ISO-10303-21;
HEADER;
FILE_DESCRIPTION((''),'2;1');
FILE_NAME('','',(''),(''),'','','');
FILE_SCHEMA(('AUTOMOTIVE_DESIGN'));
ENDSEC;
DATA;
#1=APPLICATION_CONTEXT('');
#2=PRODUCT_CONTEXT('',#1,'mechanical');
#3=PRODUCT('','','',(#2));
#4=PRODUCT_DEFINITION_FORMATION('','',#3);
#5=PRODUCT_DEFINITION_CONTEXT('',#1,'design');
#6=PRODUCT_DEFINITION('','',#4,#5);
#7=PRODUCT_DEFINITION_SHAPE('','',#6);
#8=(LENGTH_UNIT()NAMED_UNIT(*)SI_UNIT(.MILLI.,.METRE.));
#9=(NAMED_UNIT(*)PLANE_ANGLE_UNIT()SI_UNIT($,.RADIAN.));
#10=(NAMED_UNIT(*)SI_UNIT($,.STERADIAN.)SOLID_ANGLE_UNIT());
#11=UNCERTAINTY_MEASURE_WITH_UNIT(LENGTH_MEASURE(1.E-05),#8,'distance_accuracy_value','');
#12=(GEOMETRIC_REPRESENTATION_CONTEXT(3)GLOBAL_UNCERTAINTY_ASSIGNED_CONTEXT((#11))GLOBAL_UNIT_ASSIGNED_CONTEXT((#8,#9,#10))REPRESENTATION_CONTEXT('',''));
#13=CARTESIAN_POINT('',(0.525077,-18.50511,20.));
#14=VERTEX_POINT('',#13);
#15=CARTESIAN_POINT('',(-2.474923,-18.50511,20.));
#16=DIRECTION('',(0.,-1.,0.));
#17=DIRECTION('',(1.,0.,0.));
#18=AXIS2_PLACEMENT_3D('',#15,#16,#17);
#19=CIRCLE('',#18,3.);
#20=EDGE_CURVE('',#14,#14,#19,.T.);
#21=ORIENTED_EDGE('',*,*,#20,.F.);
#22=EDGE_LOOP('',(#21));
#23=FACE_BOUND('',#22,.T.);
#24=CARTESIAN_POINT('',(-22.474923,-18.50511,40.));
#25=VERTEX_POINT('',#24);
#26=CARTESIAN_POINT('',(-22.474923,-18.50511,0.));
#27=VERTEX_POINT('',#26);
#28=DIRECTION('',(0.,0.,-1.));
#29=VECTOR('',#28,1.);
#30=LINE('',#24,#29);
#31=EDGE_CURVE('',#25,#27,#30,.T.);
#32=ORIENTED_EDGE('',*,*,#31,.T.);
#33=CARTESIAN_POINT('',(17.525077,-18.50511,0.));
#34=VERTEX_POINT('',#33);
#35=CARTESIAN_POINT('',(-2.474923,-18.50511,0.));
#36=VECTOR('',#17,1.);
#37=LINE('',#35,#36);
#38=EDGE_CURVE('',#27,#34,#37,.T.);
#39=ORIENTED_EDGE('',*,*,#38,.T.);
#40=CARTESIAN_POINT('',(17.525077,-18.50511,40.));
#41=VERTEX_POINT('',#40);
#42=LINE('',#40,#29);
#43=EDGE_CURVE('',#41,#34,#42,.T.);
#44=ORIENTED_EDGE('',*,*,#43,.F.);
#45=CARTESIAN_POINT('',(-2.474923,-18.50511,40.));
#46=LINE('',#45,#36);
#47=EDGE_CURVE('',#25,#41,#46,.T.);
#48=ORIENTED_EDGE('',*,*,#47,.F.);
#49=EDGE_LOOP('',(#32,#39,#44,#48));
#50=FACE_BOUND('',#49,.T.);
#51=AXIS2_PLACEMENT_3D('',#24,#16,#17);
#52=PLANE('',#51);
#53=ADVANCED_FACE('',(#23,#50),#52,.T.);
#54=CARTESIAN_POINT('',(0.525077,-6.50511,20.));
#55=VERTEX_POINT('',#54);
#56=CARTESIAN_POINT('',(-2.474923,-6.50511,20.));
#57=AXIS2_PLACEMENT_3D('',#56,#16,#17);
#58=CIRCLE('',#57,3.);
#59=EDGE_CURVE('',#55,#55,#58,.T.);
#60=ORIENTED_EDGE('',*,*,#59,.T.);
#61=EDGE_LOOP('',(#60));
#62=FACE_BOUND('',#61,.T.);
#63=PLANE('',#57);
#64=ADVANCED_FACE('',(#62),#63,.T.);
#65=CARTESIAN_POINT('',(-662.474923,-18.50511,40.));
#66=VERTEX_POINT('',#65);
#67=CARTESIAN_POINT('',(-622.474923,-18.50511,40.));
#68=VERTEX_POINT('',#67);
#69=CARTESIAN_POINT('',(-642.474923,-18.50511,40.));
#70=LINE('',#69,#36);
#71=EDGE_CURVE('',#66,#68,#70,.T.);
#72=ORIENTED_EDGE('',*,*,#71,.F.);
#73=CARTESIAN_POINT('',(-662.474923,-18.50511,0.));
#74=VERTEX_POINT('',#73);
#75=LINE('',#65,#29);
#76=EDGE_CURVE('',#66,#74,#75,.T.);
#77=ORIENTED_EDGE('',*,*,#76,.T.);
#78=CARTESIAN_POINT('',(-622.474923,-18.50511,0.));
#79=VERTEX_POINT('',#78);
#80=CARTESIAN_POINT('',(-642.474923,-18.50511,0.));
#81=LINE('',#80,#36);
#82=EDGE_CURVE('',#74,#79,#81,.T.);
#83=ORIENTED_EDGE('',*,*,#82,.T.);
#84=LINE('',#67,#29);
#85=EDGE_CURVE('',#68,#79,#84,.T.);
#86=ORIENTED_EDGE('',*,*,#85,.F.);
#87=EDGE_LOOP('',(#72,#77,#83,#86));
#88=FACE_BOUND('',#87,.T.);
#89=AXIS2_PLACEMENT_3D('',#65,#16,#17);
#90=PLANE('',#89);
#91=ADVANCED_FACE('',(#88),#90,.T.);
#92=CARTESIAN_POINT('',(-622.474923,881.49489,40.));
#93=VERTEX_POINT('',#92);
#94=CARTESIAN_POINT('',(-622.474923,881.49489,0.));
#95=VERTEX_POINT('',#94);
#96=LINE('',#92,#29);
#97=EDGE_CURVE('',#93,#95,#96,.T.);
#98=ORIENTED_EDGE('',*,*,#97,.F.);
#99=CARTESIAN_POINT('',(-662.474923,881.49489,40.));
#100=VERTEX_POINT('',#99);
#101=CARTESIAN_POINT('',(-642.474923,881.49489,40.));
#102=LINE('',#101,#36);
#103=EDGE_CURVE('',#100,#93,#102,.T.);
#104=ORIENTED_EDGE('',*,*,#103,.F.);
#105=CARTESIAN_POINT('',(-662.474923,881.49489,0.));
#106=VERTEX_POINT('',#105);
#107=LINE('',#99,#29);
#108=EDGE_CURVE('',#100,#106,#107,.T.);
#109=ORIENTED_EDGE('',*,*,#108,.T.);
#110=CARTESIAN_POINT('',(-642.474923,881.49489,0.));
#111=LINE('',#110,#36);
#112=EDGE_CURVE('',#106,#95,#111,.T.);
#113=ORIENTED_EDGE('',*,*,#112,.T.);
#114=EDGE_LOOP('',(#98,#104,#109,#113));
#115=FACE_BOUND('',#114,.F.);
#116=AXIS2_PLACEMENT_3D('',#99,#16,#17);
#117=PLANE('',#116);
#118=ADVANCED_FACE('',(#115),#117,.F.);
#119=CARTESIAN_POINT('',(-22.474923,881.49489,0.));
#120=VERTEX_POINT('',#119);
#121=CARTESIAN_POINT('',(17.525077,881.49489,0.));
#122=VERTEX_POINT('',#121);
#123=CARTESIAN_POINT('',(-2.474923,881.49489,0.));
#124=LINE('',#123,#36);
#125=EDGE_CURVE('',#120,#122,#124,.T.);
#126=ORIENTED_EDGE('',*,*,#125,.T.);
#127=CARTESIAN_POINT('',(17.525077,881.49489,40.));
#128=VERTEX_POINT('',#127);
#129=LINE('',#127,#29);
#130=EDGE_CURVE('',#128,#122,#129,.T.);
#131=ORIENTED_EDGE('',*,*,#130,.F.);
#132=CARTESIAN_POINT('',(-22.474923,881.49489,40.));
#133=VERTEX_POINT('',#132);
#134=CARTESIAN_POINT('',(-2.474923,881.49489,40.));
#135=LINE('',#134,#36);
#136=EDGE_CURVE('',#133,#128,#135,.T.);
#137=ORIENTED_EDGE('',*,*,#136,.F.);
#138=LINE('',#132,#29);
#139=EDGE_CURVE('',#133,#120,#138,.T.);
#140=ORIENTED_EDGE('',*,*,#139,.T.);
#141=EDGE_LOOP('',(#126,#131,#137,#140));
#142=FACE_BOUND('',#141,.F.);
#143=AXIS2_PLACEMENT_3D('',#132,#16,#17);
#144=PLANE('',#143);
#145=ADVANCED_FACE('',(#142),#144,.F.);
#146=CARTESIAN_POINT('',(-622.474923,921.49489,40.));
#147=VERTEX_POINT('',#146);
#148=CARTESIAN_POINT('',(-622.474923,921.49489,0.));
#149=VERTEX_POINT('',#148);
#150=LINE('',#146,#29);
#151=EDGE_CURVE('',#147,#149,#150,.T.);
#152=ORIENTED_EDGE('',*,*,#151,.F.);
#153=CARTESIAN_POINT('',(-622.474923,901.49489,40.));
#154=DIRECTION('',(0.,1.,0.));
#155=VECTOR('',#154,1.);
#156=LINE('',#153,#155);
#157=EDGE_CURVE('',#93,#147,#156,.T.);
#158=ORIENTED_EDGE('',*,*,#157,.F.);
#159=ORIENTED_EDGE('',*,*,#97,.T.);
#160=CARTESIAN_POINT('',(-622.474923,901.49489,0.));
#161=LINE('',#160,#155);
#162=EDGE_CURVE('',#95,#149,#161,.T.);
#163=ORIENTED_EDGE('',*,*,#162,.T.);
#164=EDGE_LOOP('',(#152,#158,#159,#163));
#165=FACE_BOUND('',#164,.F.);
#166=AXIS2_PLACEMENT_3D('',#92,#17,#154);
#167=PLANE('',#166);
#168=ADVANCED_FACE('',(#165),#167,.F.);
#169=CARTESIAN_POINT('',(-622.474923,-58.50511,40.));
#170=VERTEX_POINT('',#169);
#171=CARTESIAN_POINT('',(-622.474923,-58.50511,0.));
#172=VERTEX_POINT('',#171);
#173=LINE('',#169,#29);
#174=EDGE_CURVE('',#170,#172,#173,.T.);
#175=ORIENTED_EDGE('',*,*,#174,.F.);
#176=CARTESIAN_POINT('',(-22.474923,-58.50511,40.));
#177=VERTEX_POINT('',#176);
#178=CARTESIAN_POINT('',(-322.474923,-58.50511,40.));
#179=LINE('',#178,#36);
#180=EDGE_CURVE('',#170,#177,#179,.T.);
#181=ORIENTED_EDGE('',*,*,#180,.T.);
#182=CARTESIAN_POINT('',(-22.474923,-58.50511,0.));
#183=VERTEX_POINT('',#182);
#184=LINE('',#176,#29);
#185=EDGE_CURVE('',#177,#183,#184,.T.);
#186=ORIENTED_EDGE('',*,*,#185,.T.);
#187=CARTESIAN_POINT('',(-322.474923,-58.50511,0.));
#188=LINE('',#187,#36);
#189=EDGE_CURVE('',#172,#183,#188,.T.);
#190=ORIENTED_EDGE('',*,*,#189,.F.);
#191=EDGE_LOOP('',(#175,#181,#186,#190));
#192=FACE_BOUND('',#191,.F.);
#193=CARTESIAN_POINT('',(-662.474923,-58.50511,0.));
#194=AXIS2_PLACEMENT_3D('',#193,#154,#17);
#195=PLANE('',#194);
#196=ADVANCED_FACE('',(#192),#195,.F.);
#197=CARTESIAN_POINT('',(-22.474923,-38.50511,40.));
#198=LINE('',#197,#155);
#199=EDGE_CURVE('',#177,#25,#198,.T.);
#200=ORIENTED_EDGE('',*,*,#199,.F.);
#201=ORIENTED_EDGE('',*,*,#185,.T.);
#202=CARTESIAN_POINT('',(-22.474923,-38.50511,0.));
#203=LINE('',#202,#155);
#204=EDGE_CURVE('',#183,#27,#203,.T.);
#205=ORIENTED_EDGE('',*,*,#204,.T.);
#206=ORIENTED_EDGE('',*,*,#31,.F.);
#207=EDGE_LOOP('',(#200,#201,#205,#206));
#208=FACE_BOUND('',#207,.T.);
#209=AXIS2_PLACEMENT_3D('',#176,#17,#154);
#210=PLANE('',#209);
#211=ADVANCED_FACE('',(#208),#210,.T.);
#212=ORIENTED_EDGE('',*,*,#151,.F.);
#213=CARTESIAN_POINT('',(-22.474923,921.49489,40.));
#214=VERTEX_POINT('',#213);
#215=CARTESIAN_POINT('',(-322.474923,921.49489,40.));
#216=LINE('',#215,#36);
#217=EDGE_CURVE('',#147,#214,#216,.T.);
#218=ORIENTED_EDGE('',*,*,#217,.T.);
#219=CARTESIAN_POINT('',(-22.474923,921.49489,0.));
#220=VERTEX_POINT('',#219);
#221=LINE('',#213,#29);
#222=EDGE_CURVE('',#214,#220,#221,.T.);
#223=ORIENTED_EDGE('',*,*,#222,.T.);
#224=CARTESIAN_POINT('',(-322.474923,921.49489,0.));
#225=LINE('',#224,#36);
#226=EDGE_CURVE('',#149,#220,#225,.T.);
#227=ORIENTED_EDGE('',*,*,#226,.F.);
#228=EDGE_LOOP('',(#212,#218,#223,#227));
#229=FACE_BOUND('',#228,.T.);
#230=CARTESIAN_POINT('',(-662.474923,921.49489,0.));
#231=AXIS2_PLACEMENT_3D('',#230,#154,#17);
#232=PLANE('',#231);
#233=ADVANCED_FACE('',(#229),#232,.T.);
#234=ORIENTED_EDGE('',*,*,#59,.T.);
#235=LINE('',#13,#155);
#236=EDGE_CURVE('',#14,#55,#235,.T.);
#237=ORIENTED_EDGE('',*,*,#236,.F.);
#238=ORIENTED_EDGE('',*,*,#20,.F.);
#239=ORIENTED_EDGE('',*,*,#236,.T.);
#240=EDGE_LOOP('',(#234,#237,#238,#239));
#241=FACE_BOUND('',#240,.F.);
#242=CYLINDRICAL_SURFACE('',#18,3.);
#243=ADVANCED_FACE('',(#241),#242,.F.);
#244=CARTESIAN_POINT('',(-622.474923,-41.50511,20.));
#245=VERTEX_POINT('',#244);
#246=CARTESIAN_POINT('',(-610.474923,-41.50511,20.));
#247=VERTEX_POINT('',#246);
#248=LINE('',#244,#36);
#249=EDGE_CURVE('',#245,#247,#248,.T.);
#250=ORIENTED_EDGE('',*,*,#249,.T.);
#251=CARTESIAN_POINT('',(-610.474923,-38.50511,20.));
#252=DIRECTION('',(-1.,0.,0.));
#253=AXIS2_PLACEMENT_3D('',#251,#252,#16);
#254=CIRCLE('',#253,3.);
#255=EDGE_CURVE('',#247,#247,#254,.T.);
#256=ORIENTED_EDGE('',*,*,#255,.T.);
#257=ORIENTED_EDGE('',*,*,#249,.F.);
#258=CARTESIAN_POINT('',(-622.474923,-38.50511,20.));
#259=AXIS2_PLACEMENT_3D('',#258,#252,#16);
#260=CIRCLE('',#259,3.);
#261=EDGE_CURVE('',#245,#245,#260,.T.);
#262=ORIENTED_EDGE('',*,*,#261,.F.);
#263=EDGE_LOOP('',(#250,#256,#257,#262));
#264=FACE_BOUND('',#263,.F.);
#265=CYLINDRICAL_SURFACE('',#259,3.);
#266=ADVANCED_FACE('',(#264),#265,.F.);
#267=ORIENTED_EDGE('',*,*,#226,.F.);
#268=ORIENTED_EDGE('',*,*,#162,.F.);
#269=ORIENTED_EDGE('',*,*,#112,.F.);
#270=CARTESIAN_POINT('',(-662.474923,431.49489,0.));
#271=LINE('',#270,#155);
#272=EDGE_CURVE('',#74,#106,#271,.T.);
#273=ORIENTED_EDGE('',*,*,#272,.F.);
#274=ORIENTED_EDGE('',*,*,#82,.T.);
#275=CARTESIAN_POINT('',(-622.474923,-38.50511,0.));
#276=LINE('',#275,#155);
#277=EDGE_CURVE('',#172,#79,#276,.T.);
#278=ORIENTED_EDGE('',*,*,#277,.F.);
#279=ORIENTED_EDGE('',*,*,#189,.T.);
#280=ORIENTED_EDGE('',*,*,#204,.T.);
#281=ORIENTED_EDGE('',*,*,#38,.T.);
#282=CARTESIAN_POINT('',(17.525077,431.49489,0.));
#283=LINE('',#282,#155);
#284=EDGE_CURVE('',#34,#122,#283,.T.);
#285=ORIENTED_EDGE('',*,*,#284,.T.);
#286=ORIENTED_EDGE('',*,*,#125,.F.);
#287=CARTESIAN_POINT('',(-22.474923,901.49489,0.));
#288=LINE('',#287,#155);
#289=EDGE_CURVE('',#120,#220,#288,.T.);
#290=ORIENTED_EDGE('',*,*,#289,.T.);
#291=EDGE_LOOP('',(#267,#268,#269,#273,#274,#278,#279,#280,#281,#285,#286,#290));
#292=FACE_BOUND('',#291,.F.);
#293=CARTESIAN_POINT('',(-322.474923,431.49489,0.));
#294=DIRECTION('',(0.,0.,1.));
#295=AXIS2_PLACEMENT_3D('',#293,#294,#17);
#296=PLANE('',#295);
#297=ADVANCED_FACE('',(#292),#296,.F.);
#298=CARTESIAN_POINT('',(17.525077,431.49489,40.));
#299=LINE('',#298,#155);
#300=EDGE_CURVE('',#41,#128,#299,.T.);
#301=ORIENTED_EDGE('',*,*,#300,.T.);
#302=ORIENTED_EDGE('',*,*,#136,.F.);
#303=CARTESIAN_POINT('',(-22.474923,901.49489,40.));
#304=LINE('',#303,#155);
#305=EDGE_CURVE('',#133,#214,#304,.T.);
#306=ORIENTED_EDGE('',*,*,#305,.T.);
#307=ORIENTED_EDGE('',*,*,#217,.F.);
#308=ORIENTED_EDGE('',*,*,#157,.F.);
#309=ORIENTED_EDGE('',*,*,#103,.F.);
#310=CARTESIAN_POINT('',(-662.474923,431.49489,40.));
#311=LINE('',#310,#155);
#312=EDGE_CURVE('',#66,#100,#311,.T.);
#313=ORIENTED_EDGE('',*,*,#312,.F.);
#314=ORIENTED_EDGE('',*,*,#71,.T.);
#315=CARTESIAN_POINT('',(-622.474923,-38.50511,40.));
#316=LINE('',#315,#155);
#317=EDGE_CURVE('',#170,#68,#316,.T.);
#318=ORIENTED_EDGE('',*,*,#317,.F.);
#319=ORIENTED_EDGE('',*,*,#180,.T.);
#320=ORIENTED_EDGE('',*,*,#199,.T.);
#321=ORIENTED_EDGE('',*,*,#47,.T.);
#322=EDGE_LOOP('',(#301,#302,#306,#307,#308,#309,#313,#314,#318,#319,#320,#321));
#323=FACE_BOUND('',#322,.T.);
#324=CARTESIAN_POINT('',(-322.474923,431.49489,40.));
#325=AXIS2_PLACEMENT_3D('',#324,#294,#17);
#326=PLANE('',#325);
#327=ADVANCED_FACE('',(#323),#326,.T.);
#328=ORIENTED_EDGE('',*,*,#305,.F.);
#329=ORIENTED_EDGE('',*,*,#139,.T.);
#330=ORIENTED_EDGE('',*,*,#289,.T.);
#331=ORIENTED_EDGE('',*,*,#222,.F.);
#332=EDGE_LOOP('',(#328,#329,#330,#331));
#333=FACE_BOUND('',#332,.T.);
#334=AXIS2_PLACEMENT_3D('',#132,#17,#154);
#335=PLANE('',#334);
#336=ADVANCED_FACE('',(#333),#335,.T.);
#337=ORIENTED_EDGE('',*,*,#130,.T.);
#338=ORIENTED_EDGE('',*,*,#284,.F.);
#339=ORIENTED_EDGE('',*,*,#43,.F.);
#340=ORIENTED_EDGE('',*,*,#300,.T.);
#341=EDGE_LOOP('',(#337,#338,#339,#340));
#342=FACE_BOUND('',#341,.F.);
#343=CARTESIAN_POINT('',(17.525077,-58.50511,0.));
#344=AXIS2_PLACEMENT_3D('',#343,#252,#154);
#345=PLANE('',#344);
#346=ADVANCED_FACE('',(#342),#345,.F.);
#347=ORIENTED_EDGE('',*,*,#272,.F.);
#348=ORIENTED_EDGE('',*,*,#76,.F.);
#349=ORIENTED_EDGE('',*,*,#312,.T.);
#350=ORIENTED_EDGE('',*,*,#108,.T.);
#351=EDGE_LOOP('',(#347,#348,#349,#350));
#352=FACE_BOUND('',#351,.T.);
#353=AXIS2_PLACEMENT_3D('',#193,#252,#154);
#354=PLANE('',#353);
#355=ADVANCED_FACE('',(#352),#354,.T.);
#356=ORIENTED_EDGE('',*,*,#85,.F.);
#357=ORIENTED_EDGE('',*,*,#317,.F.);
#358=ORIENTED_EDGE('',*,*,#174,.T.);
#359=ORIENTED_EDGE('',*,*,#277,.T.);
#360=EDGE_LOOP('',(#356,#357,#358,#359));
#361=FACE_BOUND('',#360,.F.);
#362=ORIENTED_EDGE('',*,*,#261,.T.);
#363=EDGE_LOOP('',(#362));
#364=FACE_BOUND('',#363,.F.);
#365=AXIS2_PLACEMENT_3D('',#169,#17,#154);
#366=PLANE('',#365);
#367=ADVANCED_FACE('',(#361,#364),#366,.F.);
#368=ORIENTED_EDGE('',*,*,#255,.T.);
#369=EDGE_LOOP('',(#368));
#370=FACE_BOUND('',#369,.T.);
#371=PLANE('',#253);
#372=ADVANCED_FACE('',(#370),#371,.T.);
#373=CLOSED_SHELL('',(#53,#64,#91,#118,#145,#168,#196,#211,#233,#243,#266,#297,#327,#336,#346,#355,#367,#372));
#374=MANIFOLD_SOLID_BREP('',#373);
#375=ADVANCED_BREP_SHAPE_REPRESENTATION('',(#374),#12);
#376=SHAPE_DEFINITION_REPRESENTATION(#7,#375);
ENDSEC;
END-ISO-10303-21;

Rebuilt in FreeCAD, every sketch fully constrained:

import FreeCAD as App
import Part
import Sketcher

V = App.Vector
Q = App.Units.Quantity


def add_polygon(sketch, points):
    """Adds a closed chain of lines whose ends are joined by coincident constraints."""
    first, n = sketch.GeometryCount, len(points)
    for a, b in zip(points, points[1:] + points[:1]):
        sketch.addGeometry(Part.LineSegment(App.Vector(*a, 0), App.Vector(*b, 0)), False)
    for i in range(n):
        sketch.addConstraint(Sketcher.Constraint("Coincident", first + i, 2, first + (i + 1) % n, 1))

doc = App.newDocument("Part")
body = doc.addObject("PartDesign::Body", "Body")

# Sketch on XY plane
sketch1 = body.newObject("Sketcher::SketchObject", "Sketch")
sketch1.AttachmentSupport = (doc.getObject("XY_Plane"), [""])
sketch1.MapMode = "FlatFace"
add_polygon(sketch1, [(-662.474923, 921.49489), (-662.474923, -58.50511), (17.525077, -58.50511), (17.525077, 921.49489)])  # lines 0-3
sketch1.addConstraint([
    Sketcher.Constraint("Vertical", 0),
    Sketcher.Constraint("Horizontal", 1),
    Sketcher.Constraint("Vertical", 2),
    Sketcher.Constraint("Horizontal", 3),
    Sketcher.Constraint("DistanceX", 1, 1, 1, 2, Q("680 mm")),
    Sketcher.Constraint("DistanceY", 0, 2, 0, 1, Q("980 mm")),
    Sketcher.Constraint("DistanceY", 0, 2, -1, 1, Q("58.50511 mm")),
    Sketcher.Constraint("DistanceX", 0, 2, -1, 1, Q("662.474923 mm")),
])
pad1 = body.newObject("PartDesign::Pad", "Pad")
pad1.Profile = sketch1
pad1.Length = 40

# Sketch on XY plane
sketch2 = body.newObject("Sketcher::SketchObject", "Sketch001")
sketch2.AttachmentSupport = (doc.getObject("XY_Plane"), [""])
sketch2.MapMode = "FlatFace"
sketch2.AttachmentOffset = App.Placement(V(0, 0, 40), App.Rotation())
add_polygon(sketch2, [(-662.474923, 921.49489), (-662.474923, 881.49489), (-622.474923, 881.49489), (-622.474923, 921.49489)])  # lines 0-3
add_polygon(sketch2, [(-22.474923, 921.49489), (-22.474923, 881.49489), (17.525077, 881.49489), (17.525077, 921.49489)])  # lines 4-7
add_polygon(sketch2, [(-662.474923, -18.50511), (-662.474923, -58.50511), (-622.474923, -58.50511), (-622.474923, -18.50511)])  # lines 8-11
add_polygon(sketch2, [(-22.474923, -18.50511), (-22.474923, -58.50511), (17.525077, -58.50511), (17.525077, -18.50511)])  # lines 12-15
sketch2.addConstraint([
    Sketcher.Constraint("Vertical", 0),
    Sketcher.Constraint("Horizontal", 1),
    Sketcher.Constraint("Vertical", 2),
    Sketcher.Constraint("Horizontal", 3),
    Sketcher.Constraint("Vertical", 4),
    Sketcher.Constraint("Horizontal", 5),
    Sketcher.Constraint("Vertical", 6),
    Sketcher.Constraint("Horizontal", 7),
    Sketcher.Constraint("Vertical", 8),
    Sketcher.Constraint("Horizontal", 9),
    Sketcher.Constraint("Vertical", 10),
    Sketcher.Constraint("Horizontal", 11),
    Sketcher.Constraint("Vertical", 12),
    Sketcher.Constraint("Horizontal", 13),
    Sketcher.Constraint("Vertical", 14),
    Sketcher.Constraint("Horizontal", 15),
    Sketcher.Constraint("Horizontal", 1, 2, 4, 2),
    Sketcher.Constraint("Horizontal", 3, 2, 6, 2),
    Sketcher.Constraint("Horizontal", 9, 2, 12, 2),
    Sketcher.Constraint("Horizontal", 11, 2, 14, 2),
    Sketcher.Constraint("Vertical", 3, 2, 8, 2),
    Sketcher.Constraint("Vertical", 2, 2, 9, 2),
    Sketcher.Constraint("Vertical", 7, 2, 12, 2),
    Sketcher.Constraint("Vertical", 6, 2, 13, 2),
    Sketcher.Constraint("Equal", 3, 5),
    Sketcher.Constraint("Equal", 15, 0),
    Sketcher.Constraint("Equal", 6, 8),
    Sketcher.Constraint("DistanceX", 1, 1, 1, 2, Q("40 mm")),
    Sketcher.Constraint("DistanceX", 1, 2, 4, 2, Q("600 mm")),
    Sketcher.Constraint("DistanceY", 8, 2, 0, 2, Q("940 mm")),
    Sketcher.Constraint("DistanceY", -1, 1, 0, 2, Q("881.49489 mm")),
    Sketcher.Constraint("DistanceX", 0, 2, -1, 1, Q("662.474923 mm")),
])
pocket1 = body.newObject("PartDesign::Pocket", "Pocket")
pocket1.Profile = sketch2
pocket1.Length = 40

# Sketch on XZ plane
sketch3 = body.newObject("Sketcher::SketchObject", "Sketch002")
sketch3.AttachmentSupport = (doc.getObject("XZ_Plane"), [""])
sketch3.MapMode = "FlatFace"
sketch3.AttachmentOffset = App.Placement(V(0, 0, 18.50511), App.Rotation())
sketch3.addGeometry(Part.Circle(V(-2.474923, 20, 0), V(0, 0, 1), 3), False)
sketch3.addConstraint([
    Sketcher.Constraint("Diameter", 0, Q("6 mm")),
    Sketcher.Constraint("DistanceY", -1, 1, 0, 3, Q("20 mm")),
    Sketcher.Constraint("DistanceX", 0, 3, -1, 1, Q("2.474923 mm")),
])
pocket2 = body.newObject("PartDesign::Pocket", "Pocket001")
pocket2.Profile = sketch3
pocket2.Length = 12

# Sketch on YZ plane
sketch4 = body.newObject("Sketcher::SketchObject", "Sketch003")
sketch4.AttachmentSupport = (doc.getObject("YZ_Plane"), [""])
sketch4.MapMode = "FlatFace"
sketch4.AttachmentOffset = App.Placement(V(0, 0, -622.474923), App.Rotation())
sketch4.addGeometry(Part.Circle(V(-38.50511, 20, 0), V(0, 0, 1), 3), False)
sketch4.addConstraint([
    Sketcher.Constraint("Diameter", 0, Q("6 mm")),
    Sketcher.Constraint("DistanceY", -1, 1, 0, 3, Q("20 mm")),
    Sketcher.Constraint("DistanceX", 0, 3, -1, 1, Q("38.50511 mm")),
])
pocket3 = body.newObject("PartDesign::Pocket", "Pocket002")
pocket3.Profile = sketch4
pocket3.Length = 12
pocket3.Reversed = True

doc.recompute()
